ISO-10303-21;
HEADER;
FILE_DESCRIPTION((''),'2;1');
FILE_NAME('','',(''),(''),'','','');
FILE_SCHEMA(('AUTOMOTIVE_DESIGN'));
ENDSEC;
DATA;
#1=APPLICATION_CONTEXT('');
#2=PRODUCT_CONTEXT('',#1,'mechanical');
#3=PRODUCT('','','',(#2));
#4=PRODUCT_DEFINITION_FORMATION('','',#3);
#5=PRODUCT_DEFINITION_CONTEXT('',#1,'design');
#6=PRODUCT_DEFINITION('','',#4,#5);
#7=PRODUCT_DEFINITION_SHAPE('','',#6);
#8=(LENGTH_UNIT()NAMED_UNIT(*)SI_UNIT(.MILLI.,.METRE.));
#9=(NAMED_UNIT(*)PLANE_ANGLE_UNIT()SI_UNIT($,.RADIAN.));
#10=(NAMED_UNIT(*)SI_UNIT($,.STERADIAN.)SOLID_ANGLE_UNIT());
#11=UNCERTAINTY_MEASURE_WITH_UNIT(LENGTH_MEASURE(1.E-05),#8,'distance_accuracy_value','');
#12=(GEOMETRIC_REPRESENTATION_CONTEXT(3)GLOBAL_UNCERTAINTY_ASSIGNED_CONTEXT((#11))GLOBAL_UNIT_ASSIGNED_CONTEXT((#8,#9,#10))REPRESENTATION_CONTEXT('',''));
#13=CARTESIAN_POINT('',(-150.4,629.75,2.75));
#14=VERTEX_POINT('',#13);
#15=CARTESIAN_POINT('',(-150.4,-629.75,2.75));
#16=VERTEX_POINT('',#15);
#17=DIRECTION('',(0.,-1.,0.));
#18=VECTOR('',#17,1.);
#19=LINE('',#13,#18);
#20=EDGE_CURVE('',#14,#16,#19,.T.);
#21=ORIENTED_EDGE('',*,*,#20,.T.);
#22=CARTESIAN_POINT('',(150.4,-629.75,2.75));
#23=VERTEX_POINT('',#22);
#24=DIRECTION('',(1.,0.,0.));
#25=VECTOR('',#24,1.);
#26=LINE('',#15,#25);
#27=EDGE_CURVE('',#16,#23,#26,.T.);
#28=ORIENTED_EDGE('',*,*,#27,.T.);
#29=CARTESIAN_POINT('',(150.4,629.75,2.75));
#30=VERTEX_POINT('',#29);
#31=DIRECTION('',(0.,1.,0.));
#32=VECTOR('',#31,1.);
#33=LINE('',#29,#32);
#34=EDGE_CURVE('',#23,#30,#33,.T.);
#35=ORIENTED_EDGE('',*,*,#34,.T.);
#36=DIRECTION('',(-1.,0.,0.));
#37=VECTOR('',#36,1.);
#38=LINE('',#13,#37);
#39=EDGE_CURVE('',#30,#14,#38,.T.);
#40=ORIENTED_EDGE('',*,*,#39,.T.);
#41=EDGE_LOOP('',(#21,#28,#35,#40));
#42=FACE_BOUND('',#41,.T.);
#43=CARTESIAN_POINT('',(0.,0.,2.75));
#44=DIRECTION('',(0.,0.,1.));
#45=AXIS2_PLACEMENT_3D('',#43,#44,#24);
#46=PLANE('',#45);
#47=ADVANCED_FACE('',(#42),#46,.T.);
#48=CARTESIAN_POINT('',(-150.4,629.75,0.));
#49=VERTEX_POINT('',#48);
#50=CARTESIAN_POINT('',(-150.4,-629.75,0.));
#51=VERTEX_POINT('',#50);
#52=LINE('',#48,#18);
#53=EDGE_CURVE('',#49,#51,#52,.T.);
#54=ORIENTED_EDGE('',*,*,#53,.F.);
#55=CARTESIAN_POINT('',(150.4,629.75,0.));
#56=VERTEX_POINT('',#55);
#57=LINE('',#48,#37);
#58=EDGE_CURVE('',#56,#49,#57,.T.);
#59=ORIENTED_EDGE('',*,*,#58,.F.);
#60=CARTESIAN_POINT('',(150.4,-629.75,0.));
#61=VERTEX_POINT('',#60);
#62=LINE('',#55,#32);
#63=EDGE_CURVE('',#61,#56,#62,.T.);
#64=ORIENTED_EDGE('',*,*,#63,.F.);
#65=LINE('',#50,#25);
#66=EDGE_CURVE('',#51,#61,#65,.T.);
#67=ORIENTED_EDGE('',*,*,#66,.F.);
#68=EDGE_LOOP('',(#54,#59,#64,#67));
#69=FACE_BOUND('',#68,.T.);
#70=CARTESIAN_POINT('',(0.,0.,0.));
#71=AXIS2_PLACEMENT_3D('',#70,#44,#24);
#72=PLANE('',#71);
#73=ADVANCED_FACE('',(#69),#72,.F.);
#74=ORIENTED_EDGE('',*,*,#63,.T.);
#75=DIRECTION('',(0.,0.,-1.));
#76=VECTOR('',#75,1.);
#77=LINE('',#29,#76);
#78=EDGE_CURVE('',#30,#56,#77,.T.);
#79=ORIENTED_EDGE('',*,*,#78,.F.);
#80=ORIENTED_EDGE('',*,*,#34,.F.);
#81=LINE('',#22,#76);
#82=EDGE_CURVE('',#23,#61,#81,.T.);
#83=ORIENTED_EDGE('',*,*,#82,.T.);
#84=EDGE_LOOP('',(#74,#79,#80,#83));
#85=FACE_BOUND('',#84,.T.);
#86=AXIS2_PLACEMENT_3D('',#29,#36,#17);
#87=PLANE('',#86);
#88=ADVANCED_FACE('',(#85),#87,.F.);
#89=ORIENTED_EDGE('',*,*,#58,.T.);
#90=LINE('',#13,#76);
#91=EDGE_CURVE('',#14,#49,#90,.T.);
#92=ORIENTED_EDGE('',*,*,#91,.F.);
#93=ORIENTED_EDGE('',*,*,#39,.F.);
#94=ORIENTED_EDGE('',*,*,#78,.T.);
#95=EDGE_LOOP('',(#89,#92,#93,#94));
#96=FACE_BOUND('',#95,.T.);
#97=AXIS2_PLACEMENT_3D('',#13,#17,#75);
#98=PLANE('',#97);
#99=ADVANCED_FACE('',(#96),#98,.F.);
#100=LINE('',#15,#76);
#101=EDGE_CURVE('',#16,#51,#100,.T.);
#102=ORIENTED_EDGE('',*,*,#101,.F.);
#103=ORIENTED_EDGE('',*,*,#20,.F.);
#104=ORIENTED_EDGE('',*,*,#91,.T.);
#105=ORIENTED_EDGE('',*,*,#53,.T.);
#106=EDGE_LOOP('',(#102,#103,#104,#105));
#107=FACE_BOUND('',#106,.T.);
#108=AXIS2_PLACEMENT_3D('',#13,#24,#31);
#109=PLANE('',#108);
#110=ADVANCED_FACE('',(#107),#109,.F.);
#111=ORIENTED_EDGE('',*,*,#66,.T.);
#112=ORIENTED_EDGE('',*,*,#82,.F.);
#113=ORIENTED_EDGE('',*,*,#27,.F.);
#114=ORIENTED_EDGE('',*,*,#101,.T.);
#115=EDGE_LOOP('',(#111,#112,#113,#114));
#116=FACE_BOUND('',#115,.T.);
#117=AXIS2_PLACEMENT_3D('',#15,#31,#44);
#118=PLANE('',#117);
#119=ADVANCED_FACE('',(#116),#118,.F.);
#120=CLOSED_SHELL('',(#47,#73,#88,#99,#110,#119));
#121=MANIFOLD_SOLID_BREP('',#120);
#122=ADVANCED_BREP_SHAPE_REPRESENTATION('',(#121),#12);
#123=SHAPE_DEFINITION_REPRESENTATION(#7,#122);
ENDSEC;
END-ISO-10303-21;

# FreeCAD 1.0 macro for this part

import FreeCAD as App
import Part
import Sketcher
Q = App.Units.Quantity

doc = App.newDocument("Part")
body = doc.addObject("PartDesign::Body", "Body")

sketch1 = doc.addObject("Sketcher::SketchObject", "Sketch")
body.addObject(sketch1)
sketch1.AttachmentSupport = (doc.XY_Plane, [""])
sketch1.MapMode = "FlatFace"
sketch1.addGeometry([
    Part.LineSegment(App.Vector(-150, 630, 0), App.Vector(-150, -630, 0)),
    Part.LineSegment(App.Vector(-150, -630, 0), App.Vector(150, -630, 0)),
    Part.LineSegment(App.Vector(150, -630, 0), App.Vector(150, 630, 0)),
    Part.LineSegment(App.Vector(150, 630, 0), App.Vector(-150, 630, 0)),
], False)
sketch1.addConstraint([
    Sketcher.Constraint("Coincident", 0, 2, 1, 1),
    Sketcher.Constraint("Coincident", 1, 2, 2, 1),
    Sketcher.Constraint("Coincident", 2, 2, 3, 1),
    Sketcher.Constraint("Coincident", 3, 2, 0, 1),
    Sketcher.Constraint("Vertical", 0),
    Sketcher.Constraint("Horizontal", 1),
    Sketcher.Constraint("Vertical", 2),
    Sketcher.Constraint("Horizontal", 3),
    Sketcher.Constraint("Symmetric", 0, 2, 2, 2, -1, 1),
    Sketcher.Constraint("DistanceX", 1, 1, 1, 2, Q("300.8 mm")),
    Sketcher.Constraint("DistanceY", 0, 2, 0, 1, Q("1259.5 mm")),
])
pad1 = doc.addObject("PartDesign::Pad", "Pad")
body.addObject(pad1)
pad1.Profile = sketch1
pad1.Length = 2.75

doc.recompute()
